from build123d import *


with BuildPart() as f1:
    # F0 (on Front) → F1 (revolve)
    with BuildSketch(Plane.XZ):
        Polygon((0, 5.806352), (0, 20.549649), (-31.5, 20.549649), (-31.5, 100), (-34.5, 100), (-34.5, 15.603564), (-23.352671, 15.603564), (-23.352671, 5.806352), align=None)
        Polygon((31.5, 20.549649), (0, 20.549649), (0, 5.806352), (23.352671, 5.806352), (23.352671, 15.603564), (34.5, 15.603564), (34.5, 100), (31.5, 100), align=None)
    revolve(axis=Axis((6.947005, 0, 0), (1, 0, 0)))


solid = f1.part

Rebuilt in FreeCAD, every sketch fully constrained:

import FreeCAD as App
import Part
import Sketcher

V = App.Vector
Q = App.Units.Quantity

doc = App.newDocument("Part")
body = doc.addObject("PartDesign::Body", "Body")

sketch1 = body.newObject("Sketcher::SketchObject", "Sketch")
sketch1.AttachmentSupport = (doc.getObject("XZ_Plane"), [""])
sketch1.MapMode = "FlatFace"
sketch1.addGeometry([
    Part.LineSegment(V(-31.5, 20.5, 0), V(-31.5, 100, 0)),
    Part.LineSegment(V(-31.5, 100, 0), V(-34.5, 100, 0)),
    Part.LineSegment(V(-34.5, 100, 0), V(-34.5, 15.6, 0)),
    Part.LineSegment(V(-34.5, 15.6, 0), V(-23.4, 15.6, 0)),
    Part.LineSegment(V(-23.4, 15.6, 0), V(-23.4, 5.8, 0)),
    Part.LineSegment(V(-23.4, 5.8, 0), V(23.4, 5.8, 0)),
    Part.LineSegment(V(23.4, 5.8, 0), V(23.4, 15.6, 0)),
    Part.LineSegment(V(23.4, 15.6, 0), V(34.5, 15.6, 0)),
    Part.LineSegment(V(34.5, 15.6, 0), V(34.5, 100, 0)),
    Part.LineSegment(V(34.5, 100, 0), V(31.5, 100, 0)),
    Part.LineSegment(V(31.5, 100, 0), V(31.5, 20.5, 0)),
    Part.LineSegment(V(31.5, 20.5, 0), V(-31.5, 20.5, 0)),
], False)
sketch1.addConstraint([
    Sketcher.Constraint("Coincident", 0, 2, 1, 1),
    Sketcher.Constraint("Coincident", 1, 2, 2, 1),
    Sketcher.Constraint("Coincident", 2, 2, 3, 1),
    Sketcher.Constraint("Coincident", 3, 2, 4, 1),
    Sketcher.Constraint("Coincident", 4, 2, 5, 1),
    Sketcher.Constraint("Coincident", 5, 2, 6, 1),
    Sketcher.Constraint("Coincident", 6, 2, 7, 1),
    Sketcher.Constraint("Coincident", 7, 2, 8, 1),
    Sketcher.Constraint("Coincident", 8, 2, 9, 1),
    Sketcher.Constraint("Coincident", 9, 2, 10, 1),
    Sketcher.Constraint("Coincident", 10, 2, 11, 1),
    Sketcher.Constraint("Coincident", 11, 2, 0, 1),
    Sketcher.Constraint("Vertical", 0),
    Sketcher.Constraint("Horizontal", 1),
    Sketcher.Constraint("Vertical", 2),
    Sketcher.Constraint("Horizontal", 3),
    Sketcher.Constraint("Vertical", 4),
    Sketcher.Constraint("Horizontal", 5),
    Sketcher.Constraint("Vertical", 6),
    Sketcher.Constraint("Horizontal", 7),
    Sketcher.Constraint("Vertical", 8),
    Sketcher.Constraint("Horizontal", 9),
    Sketcher.Constraint("Vertical", 10),
    Sketcher.Constraint("Horizontal", 11),
    Sketcher.Constraint("Symmetric", 3, 2, 6, 2, -2),
    Sketcher.Constraint("Symmetric", 1, 2, 8, 2, -2),
    Sketcher.Constraint("Equal", 1, 9),
    Sketcher.Constraint("DistanceX", 1, 2, 1, 1, Q("3 mm")),
    Sketcher.Constraint("DistanceX", 11, 2, 11, 1, Q("63 mm")),
    Sketcher.Constraint("DistanceY", -1, 1, 0, 2, Q("100 mm")),
    Sketcher.Constraint("DistanceX", 3, 1, 3, 2, Q("11.147329 mm")),
    Sketcher.Constraint("DistanceY", 0, 1, 0, 2, Q("79.450351 mm")),
    Sketcher.Constraint("DistanceY", 2, 2, 2, 1, Q("84.396436 mm")),
    Sketcher.Constraint("DistanceY", 4, 2, 4, 1, Q("9.797212 mm")),
])
revolution = body.newObject("PartDesign::Revolution", "Revolution")
revolution.Profile = sketch1
revolution.ReferenceAxis = (sketch1, ["H_Axis"])
revolution.Angle = 360

doc.recompute()
